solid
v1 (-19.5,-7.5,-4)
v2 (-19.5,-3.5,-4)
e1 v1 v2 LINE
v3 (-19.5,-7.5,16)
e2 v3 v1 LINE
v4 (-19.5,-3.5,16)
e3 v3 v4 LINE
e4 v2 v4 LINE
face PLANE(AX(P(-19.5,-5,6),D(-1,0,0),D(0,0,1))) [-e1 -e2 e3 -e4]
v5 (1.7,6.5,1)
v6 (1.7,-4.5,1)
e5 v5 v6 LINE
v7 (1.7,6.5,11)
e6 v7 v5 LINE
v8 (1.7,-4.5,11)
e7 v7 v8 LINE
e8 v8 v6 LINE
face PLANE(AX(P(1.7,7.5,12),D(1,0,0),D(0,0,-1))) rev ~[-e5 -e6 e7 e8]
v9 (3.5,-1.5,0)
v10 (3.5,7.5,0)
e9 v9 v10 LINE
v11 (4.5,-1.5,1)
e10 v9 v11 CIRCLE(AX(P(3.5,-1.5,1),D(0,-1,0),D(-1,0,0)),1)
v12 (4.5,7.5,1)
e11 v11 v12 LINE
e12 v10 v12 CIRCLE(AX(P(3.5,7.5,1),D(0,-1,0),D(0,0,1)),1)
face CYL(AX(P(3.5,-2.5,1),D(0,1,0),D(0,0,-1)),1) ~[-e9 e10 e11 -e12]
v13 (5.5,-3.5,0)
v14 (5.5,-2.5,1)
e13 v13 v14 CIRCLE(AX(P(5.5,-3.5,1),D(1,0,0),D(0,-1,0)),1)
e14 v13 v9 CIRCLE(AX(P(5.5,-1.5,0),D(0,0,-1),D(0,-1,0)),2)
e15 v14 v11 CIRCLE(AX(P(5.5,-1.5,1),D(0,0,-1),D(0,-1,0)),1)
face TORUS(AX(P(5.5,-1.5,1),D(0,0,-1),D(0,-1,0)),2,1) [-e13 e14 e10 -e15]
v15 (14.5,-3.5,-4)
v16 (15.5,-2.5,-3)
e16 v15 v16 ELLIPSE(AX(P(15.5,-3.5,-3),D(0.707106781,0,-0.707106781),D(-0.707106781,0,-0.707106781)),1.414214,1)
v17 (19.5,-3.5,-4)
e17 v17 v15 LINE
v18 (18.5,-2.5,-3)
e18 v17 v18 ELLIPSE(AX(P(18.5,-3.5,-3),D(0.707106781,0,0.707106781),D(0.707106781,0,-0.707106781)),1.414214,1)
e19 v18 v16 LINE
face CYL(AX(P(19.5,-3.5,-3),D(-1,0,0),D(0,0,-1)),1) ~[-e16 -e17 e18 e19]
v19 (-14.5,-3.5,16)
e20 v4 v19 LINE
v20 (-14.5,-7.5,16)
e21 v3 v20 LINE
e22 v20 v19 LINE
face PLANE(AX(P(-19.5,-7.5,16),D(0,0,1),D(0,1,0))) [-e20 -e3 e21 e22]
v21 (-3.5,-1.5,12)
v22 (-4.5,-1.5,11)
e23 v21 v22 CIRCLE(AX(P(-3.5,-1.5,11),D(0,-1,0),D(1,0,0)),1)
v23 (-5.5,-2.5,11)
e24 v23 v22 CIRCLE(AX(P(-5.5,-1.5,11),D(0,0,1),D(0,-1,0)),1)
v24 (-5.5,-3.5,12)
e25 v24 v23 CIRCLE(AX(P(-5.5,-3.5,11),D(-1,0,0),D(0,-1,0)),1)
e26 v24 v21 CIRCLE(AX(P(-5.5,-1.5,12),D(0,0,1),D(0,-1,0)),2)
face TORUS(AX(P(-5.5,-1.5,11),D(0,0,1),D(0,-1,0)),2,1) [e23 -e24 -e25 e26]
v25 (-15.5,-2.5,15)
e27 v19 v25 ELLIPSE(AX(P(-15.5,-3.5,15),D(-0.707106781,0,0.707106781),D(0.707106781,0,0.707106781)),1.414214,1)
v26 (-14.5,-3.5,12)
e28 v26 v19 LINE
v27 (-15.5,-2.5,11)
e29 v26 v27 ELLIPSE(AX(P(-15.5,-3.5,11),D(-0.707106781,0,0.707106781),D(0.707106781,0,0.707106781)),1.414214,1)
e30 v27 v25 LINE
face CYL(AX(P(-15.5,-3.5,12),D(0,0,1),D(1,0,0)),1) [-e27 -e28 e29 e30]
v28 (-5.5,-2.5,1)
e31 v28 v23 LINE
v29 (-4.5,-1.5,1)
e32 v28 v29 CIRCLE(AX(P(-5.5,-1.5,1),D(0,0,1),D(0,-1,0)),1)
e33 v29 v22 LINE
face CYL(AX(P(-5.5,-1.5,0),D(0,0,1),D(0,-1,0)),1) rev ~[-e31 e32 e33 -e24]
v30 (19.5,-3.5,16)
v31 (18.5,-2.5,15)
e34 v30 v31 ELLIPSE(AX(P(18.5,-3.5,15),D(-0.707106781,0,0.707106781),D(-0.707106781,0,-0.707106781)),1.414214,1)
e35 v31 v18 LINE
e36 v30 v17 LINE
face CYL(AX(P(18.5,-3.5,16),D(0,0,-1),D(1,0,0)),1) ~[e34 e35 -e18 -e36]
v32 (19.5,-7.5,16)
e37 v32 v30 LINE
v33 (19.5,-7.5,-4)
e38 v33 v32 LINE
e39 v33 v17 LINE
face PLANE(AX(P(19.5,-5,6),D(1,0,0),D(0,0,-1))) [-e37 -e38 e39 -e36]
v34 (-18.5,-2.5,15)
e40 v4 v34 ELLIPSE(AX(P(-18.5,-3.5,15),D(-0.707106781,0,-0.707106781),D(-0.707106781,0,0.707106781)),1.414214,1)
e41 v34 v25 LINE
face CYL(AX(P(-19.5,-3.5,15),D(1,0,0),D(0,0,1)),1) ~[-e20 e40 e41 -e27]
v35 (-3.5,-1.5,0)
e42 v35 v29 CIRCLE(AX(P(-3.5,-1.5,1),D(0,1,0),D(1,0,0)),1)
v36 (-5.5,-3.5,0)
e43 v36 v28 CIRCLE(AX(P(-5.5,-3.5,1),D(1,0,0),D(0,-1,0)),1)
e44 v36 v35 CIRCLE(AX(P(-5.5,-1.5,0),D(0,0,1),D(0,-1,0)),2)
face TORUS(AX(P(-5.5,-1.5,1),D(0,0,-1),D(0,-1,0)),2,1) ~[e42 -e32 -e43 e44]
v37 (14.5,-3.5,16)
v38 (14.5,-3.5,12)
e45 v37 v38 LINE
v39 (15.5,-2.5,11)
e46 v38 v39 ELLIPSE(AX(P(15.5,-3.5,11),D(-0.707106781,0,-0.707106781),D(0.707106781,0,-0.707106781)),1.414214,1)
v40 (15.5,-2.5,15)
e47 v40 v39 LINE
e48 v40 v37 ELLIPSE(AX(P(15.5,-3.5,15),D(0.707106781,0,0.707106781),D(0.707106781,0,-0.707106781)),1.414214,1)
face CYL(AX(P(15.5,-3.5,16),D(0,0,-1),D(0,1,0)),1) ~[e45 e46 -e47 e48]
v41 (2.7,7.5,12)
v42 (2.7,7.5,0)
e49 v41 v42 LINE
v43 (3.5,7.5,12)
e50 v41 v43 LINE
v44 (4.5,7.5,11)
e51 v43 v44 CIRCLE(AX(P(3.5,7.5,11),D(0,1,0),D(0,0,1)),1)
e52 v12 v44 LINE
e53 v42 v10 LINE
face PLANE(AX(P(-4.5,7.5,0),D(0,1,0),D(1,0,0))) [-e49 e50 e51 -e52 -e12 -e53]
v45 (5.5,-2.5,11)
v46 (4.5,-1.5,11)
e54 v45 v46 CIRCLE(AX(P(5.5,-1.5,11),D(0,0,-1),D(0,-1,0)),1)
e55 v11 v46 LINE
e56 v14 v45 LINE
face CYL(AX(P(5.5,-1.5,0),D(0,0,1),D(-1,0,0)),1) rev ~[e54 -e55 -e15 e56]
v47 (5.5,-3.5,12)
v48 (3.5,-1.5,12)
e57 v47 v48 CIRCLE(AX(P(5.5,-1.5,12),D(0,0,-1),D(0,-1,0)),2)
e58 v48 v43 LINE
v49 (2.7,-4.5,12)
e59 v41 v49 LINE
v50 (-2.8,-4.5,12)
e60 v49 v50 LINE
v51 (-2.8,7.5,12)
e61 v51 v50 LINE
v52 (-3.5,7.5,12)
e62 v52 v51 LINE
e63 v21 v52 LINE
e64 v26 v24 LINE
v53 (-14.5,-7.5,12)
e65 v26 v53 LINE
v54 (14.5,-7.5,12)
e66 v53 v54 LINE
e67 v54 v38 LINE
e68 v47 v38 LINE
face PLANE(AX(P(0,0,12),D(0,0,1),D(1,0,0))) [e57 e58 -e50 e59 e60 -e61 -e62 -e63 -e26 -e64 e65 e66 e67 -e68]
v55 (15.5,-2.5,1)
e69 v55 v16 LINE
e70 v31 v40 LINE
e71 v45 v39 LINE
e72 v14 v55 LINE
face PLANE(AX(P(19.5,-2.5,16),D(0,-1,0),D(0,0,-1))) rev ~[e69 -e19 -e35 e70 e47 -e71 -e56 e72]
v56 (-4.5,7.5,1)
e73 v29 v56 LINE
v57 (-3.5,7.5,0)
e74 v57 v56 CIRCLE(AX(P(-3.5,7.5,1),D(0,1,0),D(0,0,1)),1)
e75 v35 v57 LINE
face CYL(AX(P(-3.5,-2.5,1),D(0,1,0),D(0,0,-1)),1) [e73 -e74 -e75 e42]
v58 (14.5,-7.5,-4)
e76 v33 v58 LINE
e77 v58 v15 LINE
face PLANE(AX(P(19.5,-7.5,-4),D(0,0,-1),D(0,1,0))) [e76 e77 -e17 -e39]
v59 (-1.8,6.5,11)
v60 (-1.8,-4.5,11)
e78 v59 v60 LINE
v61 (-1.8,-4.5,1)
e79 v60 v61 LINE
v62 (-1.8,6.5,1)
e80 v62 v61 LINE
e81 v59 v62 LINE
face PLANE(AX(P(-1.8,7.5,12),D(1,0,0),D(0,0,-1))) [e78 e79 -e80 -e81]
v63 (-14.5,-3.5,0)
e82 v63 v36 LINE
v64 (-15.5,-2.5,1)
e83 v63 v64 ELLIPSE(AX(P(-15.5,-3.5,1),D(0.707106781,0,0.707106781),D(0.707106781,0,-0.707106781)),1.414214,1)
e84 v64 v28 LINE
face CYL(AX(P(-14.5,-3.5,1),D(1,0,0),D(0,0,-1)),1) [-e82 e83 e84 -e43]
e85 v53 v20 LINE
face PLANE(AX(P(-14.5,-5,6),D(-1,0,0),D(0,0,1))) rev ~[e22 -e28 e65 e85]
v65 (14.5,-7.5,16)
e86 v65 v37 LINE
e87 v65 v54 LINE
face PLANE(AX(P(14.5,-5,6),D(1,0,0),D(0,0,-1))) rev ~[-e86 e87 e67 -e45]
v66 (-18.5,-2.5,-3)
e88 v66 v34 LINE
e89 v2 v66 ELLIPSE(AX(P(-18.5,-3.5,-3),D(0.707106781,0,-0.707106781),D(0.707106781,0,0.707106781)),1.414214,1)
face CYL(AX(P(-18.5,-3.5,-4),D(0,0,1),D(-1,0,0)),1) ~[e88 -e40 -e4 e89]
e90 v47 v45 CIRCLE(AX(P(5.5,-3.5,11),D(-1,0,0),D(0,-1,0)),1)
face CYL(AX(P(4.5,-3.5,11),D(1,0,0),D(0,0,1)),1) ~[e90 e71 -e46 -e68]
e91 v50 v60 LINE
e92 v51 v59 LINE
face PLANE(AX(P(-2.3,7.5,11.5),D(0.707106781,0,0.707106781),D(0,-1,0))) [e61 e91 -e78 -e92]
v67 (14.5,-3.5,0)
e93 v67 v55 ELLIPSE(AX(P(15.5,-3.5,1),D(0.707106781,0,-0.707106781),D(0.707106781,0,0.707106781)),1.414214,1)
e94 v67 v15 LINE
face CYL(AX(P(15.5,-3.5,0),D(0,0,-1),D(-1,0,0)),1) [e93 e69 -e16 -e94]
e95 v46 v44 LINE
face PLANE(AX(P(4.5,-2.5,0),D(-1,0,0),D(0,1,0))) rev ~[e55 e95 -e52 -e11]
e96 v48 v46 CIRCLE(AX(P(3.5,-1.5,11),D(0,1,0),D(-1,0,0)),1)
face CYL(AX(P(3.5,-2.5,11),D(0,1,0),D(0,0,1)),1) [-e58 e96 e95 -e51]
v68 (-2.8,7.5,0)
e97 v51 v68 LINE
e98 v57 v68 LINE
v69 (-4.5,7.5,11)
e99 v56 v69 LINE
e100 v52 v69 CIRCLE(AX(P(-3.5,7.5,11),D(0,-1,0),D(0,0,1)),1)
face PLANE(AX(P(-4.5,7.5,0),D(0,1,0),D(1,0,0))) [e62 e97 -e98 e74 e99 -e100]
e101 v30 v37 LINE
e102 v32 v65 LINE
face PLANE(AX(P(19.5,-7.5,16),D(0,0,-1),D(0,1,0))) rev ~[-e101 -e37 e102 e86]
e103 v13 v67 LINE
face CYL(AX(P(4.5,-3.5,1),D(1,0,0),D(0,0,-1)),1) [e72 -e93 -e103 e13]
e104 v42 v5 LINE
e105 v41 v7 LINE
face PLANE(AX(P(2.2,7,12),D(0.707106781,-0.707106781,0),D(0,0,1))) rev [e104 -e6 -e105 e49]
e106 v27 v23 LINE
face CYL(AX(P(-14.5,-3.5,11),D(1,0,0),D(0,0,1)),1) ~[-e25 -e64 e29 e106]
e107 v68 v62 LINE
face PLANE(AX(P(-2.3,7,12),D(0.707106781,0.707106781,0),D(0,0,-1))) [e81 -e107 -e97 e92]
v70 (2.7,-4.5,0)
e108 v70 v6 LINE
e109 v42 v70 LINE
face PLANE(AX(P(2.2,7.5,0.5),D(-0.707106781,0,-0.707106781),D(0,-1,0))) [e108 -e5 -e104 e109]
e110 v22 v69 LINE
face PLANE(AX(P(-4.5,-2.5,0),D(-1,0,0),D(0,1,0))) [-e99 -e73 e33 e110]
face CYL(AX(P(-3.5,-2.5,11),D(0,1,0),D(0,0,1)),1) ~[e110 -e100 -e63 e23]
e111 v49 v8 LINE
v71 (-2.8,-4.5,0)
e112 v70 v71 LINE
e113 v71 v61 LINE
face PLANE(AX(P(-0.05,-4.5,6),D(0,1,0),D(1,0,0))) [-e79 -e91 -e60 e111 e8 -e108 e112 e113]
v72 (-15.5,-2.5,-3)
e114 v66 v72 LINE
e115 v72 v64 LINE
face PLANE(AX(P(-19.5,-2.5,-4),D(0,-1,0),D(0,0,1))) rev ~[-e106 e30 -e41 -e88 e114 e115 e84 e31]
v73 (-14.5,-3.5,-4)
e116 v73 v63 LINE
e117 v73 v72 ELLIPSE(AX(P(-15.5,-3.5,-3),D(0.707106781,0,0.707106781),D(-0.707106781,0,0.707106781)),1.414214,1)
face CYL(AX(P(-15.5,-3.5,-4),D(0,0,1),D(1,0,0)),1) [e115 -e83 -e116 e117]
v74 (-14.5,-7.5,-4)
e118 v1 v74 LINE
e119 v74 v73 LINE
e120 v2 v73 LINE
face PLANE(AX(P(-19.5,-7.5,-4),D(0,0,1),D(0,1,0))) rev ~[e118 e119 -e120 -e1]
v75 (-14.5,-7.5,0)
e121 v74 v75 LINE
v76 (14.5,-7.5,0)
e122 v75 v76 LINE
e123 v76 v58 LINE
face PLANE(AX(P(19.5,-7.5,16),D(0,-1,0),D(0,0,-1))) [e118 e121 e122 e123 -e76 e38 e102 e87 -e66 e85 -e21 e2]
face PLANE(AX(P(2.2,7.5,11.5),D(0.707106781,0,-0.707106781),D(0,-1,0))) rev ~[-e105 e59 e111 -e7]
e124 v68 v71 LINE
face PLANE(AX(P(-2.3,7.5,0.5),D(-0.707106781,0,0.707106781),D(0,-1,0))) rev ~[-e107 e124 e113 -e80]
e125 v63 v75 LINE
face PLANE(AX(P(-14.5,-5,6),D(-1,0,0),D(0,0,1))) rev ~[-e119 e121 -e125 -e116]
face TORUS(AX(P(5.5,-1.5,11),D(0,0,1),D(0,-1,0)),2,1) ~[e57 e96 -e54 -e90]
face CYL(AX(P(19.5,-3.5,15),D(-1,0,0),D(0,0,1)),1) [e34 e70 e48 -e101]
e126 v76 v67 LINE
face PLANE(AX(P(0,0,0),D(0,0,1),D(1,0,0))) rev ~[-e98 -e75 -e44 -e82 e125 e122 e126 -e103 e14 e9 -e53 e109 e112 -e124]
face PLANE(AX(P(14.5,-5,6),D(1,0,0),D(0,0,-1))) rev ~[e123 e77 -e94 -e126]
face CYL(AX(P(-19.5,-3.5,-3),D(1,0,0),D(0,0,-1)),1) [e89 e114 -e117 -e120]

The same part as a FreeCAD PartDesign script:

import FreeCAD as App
import Part
import Sketcher

V = App.Vector


def edges_at(feature, points):
    """Names of the edges that pass closest to the given points."""
    edges = feature.Shape.Edges
    near = lambda p: min(range(len(edges)), key=lambda i: edges[i].distToShape(Part.Vertex(*p))[0])
    return sorted({f"Edge{near(p) + 1}" for p in points})


def add_polygon(sketch, points):
    """Adds a closed chain of lines whose ends are joined by coincident constraints."""
    first, n = sketch.GeometryCount, len(points)
    for a, b in zip(points, points[1:] + points[:1]):
        sketch.addGeometry(Part.LineSegment(App.Vector(*a, 0), App.Vector(*b, 0)), False)
    for i in range(n):
        sketch.addConstraint(Sketcher.Constraint("Coincident", first + i, 2, first + (i + 1) % n, 1))

doc = App.newDocument("Part")
body = doc.addObject("PartDesign::Body", "Body")

# Sketch on XY plane
sketch1 = body.newObject("Sketcher::SketchObject", "Sketch")
sketch1.AttachmentSupport = (doc.getObject("XY_Plane"), [""])
sketch1.MapMode = "FlatFace"
add_polygon(sketch1, [(-4, 8), (-4, -2), (-20, -2), (-20, -8), (20, -8), (20, -2), (4, -2), (4, 8)])  # lines 0-7
sketch1.addConstraint(Sketcher.Constraint("Vertical", 0))
sketch1.addConstraint(Sketcher.Constraint("Horizontal", 1))
sketch1.addConstraint(Sketcher.Constraint("Vertical", 2))
sketch1.addConstraint(Sketcher.Constraint("Horizontal", 3))
sketch1.addConstraint(Sketcher.Constraint("Vertical", 4))
sketch1.addConstraint(Sketcher.Constraint("Horizontal", 5))
sketch1.addConstraint(Sketcher.Constraint("Vertical", 6))
sketch1.addConstraint(Sketcher.Constraint("Horizontal", 7))
sketch1.addConstraint(Sketcher.Constraint("Symmetric", 1, 2, 4, 2, -2))
sketch1.addConstraint(Sketcher.Constraint("Equal", 1, 5))
sketch1.addConstraint(Sketcher.Constraint("DistanceX", 1, 2, 1, 1, 15.0))
sketch1.addConstraint(Sketcher.Constraint("DistanceX", 3, 1, 3, 2, 39.0))
sketch1.addConstraint(Sketcher.Constraint("DistanceY", 0, 2, 0, 1, 10.0))
sketch1.addConstraint(Sketcher.Constraint("DistanceY", 2, 2, 2, 1, 5.0))
sketch1.addConstraint(Sketcher.Constraint("DistanceY", 0, 2, -1, 1, 2.5))
pad1 = body.newObject("PartDesign::Pad", "Pad")
pad1.Profile = sketch1
pad1.Length = 12

# Sketch on XZ plane
sketch2 = body.newObject("Sketcher::SketchObject", "Sketch001")
sketch2.AttachmentSupport = (doc.getObject("XZ_Plane"), [""])
sketch2.MapMode = "FlatFace"
sketch2.AttachmentOffset = App.Placement(V(0, 0, -7.5), App.Rotation())
add_polygon(sketch2, [(-1.8, 0), (-1.8, 12), (1.7, 12), (1.7, 0)])  # lines 0-3
sketch2.addConstraint(Sketcher.Constraint("Vertical", 0))
sketch2.addConstraint(Sketcher.Constraint("Horizontal", 1))
sketch2.addConstraint(Sketcher.Constraint("Vertical", 2))
sketch2.addConstraint(Sketcher.Constraint("Horizontal", 3))
sketch2.addConstraint(Sketcher.Constraint("PointOnObject", 2, 2, -1))
sketch2.addConstraint(Sketcher.Constraint("DistanceY", 0, 1, 0, 2, 12.0))
sketch2.addConstraint(Sketcher.Constraint("DistanceX", 1, 1, 1, 2, 3.5))
sketch2.addConstraint(Sketcher.Constraint("DistanceX", 0, 2, -1, 1, 1.8))
pocket1 = body.newObject("PartDesign::Pocket", "Pocket")
pocket1.Profile = sketch2
pocket1.Length = 12
pocket1.Reversed = True

# Sketch on YZ plane
sketch3 = body.newObject("Sketcher::SketchObject", "Sketch002")
sketch3.AttachmentSupport = (doc.getObject("YZ_Plane"), [""])
sketch3.MapMode = "FlatFace"
sketch3.AttachmentOffset = App.Placement(V(0, 0, -19.5), App.Rotation())
add_polygon(sketch3, [(-2, -4), (-8, -4), (-8, 16), (-2, 16)])  # lines 0-3
sketch3.addConstraint(Sketcher.Constraint("Horizontal", 0))
sketch3.addConstraint(Sketcher.Constraint("Vertical", 1))
sketch3.addConstraint(Sketcher.Constraint("Horizontal", 2))
sketch3.addConstraint(Sketcher.Constraint("Vertical", 3))
sketch3.addConstraint(Sketcher.Constraint("DistanceX", 0, 2, 0, 1, 5.0))
sketch3.addConstraint(Sketcher.Constraint("DistanceY", 1, 1, 1, 2, 20.0))
sketch3.addConstraint(Sketcher.Constraint("DistanceY", 0, 2, -1, 1, 4.0))
sketch3.addConstraint(Sketcher.Constraint("DistanceX", 0, 2, -1, 1, 7.5))
pad2 = body.newObject("PartDesign::Pad", "Pad001")
pad2.Profile = sketch3
pad2.Length = 5

# Sketch on YZ plane
sketch4 = body.newObject("Sketcher::SketchObject", "Sketch003")
sketch4.AttachmentSupport = (doc.getObject("YZ_Plane"), [""])
sketch4.MapMode = "FlatFace"
sketch4.AttachmentOffset = App.Placement(V(0, 0, 19.5), App.Rotation())
add_polygon(sketch4, [(-2, 16), (-8, 16), (-8, -4), (-2, -4)])  # lines 0-3
sketch4.addConstraint(Sketcher.Constraint("Horizontal", 0))
sketch4.addConstraint(Sketcher.Constraint("Vertical", 1))
sketch4.addConstraint(Sketcher.Constraint("Horizontal", 2))
sketch4.addConstraint(Sketcher.Constraint("Vertical", 3))
sketch4.addConstraint(Sketcher.Constraint("DistanceX", 0, 2, 0, 1, 5.0))
sketch4.addConstraint(Sketcher.Constraint("DistanceY", 1, 2, 1, 1, 20.0))
sketch4.addConstraint(Sketcher.Constraint("DistanceY", -1, 1, 0, 2, 16.0))
sketch4.addConstraint(Sketcher.Constraint("DistanceX", 0, 2, -1, 1, 7.5))
pad3 = body.newObject("PartDesign::Pad", "Pad002")
pad3.Profile = sketch4
pad3.Length = 5
pad3.Reversed = True
doc.recompute()

chamfer = body.newObject("PartDesign::Chamfer", "Chamfer")
chamfer.Base = (pad3, edges_at(pad3, [
    (-1.8, 1.5, 12),
    (-1.8, 1.5, 0),
    (1.7, 1.5, 0),
    (1.7, 1.5, 12),
    (-1.8, 7.5, 6),
    (1.7, 7.5, 6),
]))
chamfer.Size = 1
doc.recompute()

fillet = body.newObject("PartDesign::Fillet", "Fillet")
fillet.Base = (chamfer, edges_at(chamfer, [
    (9.5, -2.5, 0),
    (-9.5, -2.5, 0),
    (-4.5, 2.5, 0),
    (4.5, 2.5, 0),
    (-4.5, 2.5, 12),
    (4.5, -2.5, 6),
    (19.5, -2.5, 6),
    (-19.5, -2.5, 6),
    (-4.5, -2.5, 6),
    (-9.5, -2.5, 12),
    (9.5, -2.5, 12),
    (-14.5, -2.5, -2),
    (4.5, 2.5, 12),
    (-17, -2.5, -4),
    (-14.5, -2.5, 14),
    (-17, -2.5, 16),
    (14.5, -2.5, -2),
    (14.5, -2.5, 14),
    (17, -2.5, 16),
    (17, -2.5, -4),
]))
fillet.Radius = 1

doc.recompute()
